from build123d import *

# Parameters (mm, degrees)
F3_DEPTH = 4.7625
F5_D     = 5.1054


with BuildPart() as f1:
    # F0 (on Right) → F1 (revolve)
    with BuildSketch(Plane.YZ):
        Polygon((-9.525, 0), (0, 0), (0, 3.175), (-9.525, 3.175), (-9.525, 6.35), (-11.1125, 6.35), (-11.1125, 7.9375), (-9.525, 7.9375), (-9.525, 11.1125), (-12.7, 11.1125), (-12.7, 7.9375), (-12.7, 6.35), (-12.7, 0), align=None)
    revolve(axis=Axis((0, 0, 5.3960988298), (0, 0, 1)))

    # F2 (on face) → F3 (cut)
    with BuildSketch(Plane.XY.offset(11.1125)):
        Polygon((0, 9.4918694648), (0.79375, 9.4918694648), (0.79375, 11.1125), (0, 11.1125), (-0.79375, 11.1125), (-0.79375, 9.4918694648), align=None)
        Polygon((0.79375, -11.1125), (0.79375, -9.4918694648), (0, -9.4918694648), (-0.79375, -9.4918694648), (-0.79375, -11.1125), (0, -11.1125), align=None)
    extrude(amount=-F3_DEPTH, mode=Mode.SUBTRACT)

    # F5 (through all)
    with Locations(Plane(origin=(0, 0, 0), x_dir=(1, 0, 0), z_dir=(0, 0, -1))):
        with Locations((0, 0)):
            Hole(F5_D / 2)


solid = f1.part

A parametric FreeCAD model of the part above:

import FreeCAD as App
import Part
import Sketcher
Q = App.Units.Quantity

doc = App.newDocument("Part")
body = doc.addObject("PartDesign::Body", "Body")

sketch1 = body.newObject("Sketcher::SketchObject", "Sketch")
sketch1.AttachmentSupport = (doc.getObject("YZ_Plane"), [""])
sketch1.MapMode = "FlatFace"
sketch1.addGeometry([
    Part.LineSegment(App.Vector(0, 0, 0), App.Vector(0, 3.2, 0)),
    Part.LineSegment(App.Vector(0, 3.2, 0), App.Vector(-9.5, 3.2, 0)),
    Part.LineSegment(App.Vector(-9.5, 3.2, 0), App.Vector(-9.5, 6.3, 0)),
    Part.LineSegment(App.Vector(-9.5, 6.3, 0), App.Vector(-11.1, 6.3, 0)),
    Part.LineSegment(App.Vector(-11.1, 6.3, 0), App.Vector(-11.1, 7.9, 0)),
    Part.LineSegment(App.Vector(-11.1, 7.9, 0), App.Vector(-9.5, 7.9, 0)),
    Part.LineSegment(App.Vector(-9.5, 7.9, 0), App.Vector(-9.5, 11.1, 0)),
    Part.LineSegment(App.Vector(-9.5, 11.1, 0), App.Vector(-12.7, 11.1, 0)),
    Part.LineSegment(App.Vector(-12.7, 11.1, 0), App.Vector(-12.7, 0, 0)),
    Part.LineSegment(App.Vector(-12.7, 0, 0), App.Vector(0, 0, 0)),
], False)
sketch1.addConstraint([
    Sketcher.Constraint("Coincident", 0, 2, 1, 1),
    Sketcher.Constraint("Coincident", 1, 2, 2, 1),
    Sketcher.Constraint("Coincident", 2, 2, 3, 1),
    Sketcher.Constraint("Coincident", 3, 2, 4, 1),
    Sketcher.Constraint("Coincident", 4, 2, 5, 1),
    Sketcher.Constraint("Coincident", 5, 2, 6, 1),
    Sketcher.Constraint("Coincident", 6, 2, 7, 1),
    Sketcher.Constraint("Coincident", 7, 2, 8, 1),
    Sketcher.Constraint("Coincident", 8, 2, 9, 1),
    Sketcher.Constraint("Coincident", 9, 2, 0, 1),
    Sketcher.Constraint("Vertical", 0),
    Sketcher.Constraint("Horizontal", 1),
    Sketcher.Constraint("Vertical", 2),
    Sketcher.Constraint("Horizontal", 3),
    Sketcher.Constraint("Vertical", 4),
    Sketcher.Constraint("Horizontal", 5),
    Sketcher.Constraint("Vertical", 6),
    Sketcher.Constraint("Horizontal", 7),
    Sketcher.Constraint("Vertical", 8),
    Sketcher.Constraint("Horizontal", 9),
    Sketcher.Constraint("Coincident", 9, 2, -1, 1),
    Sketcher.Constraint("Vertical", 2, 2, 5, 2),
    Sketcher.Constraint("Equal", 7, 0),
    Sketcher.Constraint("Equal", 0, 2),
    Sketcher.Constraint("Equal", 5, 4),
    Sketcher.Constraint("Equal", 2, 6),
    Sketcher.Constraint("DistanceX", 9, 1, 9, 2, Q("0.5 in")),
    Sketcher.Constraint("DistanceX", 1, 2, 1, 1, Q("0.375 in")),
    Sketcher.Constraint("DistanceX", 3, 2, 3, 1, Q("0.0625 in")),
])
revolution = body.newObject("PartDesign::Revolution", "Revolution")
revolution.Profile = sketch1
revolution.ReferenceAxis = (sketch1, ["V_Axis"])
revolution.Angle = 360

sketch2 = body.newObject("Sketcher::SketchObject", "Sketch001")
sketch2.AttachmentSupport = (doc.getObject("XY_Plane"), [""])
sketch2.MapMode = "FlatFace"
sketch2.AttachmentOffset = App.Placement(App.Vector(0, 0, 0.4375 * 25.4), App.Rotation())
sketch2.addGeometry([
    Part.LineSegment(App.Vector(0.8, 9.5, 0), App.Vector(0.8, 11.1, 0)),
    Part.LineSegment(App.Vector(0.8, 11.1, 0), App.Vector(-0.8, 11.1, 0)),
    Part.LineSegment(App.Vector(-0.8, 11.1, 0), App.Vector(-0.8, 9.5, 0)),
    Part.LineSegment(App.Vector(-0.8, 9.5, 0), App.Vector(0.8, 9.5, 0)),
    Part.LineSegment(App.Vector(0.8, -11.1, 0), App.Vector(0.8, -9.5, 0)),
    Part.LineSegment(App.Vector(0.8, -9.5, 0), App.Vector(-0.8, -9.5, 0)),
    Part.LineSegment(App.Vector(-0.8, -9.5, 0), App.Vector(-0.8, -11.1, 0)),
    Part.LineSegment(App.Vector(-0.8, -11.1, 0), App.Vector(0.8, -11.1, 0)),
], False)
sketch2.addConstraint([
    Sketcher.Constraint("Coincident", 0, 2, 1, 1),
    Sketcher.Constraint("Coincident", 1, 2, 2, 1),
    Sketcher.Constraint("Coincident", 2, 2, 3, 1),
    Sketcher.Constraint("Coincident", 3, 2, 0, 1),
    Sketcher.Constraint("Coincident", 4, 2, 5, 1),
    Sketcher.Constraint("Coincident", 5, 2, 6, 1),
    Sketcher.Constraint("Coincident", 6, 2, 7, 1),
    Sketcher.Constraint("Coincident", 7, 2, 4, 1),
    Sketcher.Constraint("Vertical", 0),
    Sketcher.Constraint("Horizontal", 1),
    Sketcher.Constraint("Vertical", 2),
    Sketcher.Constraint("Horizontal", 3),
    Sketcher.Constraint("Vertical", 4),
    Sketcher.Constraint("Horizontal", 5),
    Sketcher.Constraint("Vertical", 6),
    Sketcher.Constraint("Horizontal", 7),
    Sketcher.Constraint("Symmetric", 2, 2, 4, 2, -1, 1),
    Sketcher.Constraint("Symmetric", 0, 2, 6, 2, -1, 1),
    Sketcher.Constraint("Vertical", 3, 2, 4, 2),
    Sketcher.Constraint("DistanceX", 1, 2, 1, 1, Q("0.0625 in")),
    Sketcher.Constraint("DistanceY", -1, 1, 0, 2, Q("0.4375 in")),
    Sketcher.Constraint("DistanceY", 0, 1, 0, 2, 1.620631),
])
pocket1 = body.newObject("PartDesign::Pocket", "Pocket")
pocket1.Profile = sketch2
pocket1.Length = Q("0.1875 in")

sketch3 = body.newObject("Sketcher::SketchObject", "Sketch002")
sketch3.AttachmentSupport = (doc.getObject("XY_Plane"), [""])
sketch3.MapMode = "FlatFace"
sketch3.addGeometry(Part.Circle(App.Vector(0, 0, 0), App.Vector(0, 0, 1), 2.6), False)
sketch3.addConstraint([
    Sketcher.Constraint("Coincident", 0, 3, -1, 1),
    Sketcher.Constraint("Diameter", 0, Q("0.201 in")),
])
doc.recompute()
hole = body.newObject("PartDesign::Hole", "Hole")
hole.Profile = sketch3
hole.ThreadType = "None"
hole.Diameter = Q("0.201 in")
hole.DepthType = "ThroughAll"
hole.Reversed = True

doc.recompute()
